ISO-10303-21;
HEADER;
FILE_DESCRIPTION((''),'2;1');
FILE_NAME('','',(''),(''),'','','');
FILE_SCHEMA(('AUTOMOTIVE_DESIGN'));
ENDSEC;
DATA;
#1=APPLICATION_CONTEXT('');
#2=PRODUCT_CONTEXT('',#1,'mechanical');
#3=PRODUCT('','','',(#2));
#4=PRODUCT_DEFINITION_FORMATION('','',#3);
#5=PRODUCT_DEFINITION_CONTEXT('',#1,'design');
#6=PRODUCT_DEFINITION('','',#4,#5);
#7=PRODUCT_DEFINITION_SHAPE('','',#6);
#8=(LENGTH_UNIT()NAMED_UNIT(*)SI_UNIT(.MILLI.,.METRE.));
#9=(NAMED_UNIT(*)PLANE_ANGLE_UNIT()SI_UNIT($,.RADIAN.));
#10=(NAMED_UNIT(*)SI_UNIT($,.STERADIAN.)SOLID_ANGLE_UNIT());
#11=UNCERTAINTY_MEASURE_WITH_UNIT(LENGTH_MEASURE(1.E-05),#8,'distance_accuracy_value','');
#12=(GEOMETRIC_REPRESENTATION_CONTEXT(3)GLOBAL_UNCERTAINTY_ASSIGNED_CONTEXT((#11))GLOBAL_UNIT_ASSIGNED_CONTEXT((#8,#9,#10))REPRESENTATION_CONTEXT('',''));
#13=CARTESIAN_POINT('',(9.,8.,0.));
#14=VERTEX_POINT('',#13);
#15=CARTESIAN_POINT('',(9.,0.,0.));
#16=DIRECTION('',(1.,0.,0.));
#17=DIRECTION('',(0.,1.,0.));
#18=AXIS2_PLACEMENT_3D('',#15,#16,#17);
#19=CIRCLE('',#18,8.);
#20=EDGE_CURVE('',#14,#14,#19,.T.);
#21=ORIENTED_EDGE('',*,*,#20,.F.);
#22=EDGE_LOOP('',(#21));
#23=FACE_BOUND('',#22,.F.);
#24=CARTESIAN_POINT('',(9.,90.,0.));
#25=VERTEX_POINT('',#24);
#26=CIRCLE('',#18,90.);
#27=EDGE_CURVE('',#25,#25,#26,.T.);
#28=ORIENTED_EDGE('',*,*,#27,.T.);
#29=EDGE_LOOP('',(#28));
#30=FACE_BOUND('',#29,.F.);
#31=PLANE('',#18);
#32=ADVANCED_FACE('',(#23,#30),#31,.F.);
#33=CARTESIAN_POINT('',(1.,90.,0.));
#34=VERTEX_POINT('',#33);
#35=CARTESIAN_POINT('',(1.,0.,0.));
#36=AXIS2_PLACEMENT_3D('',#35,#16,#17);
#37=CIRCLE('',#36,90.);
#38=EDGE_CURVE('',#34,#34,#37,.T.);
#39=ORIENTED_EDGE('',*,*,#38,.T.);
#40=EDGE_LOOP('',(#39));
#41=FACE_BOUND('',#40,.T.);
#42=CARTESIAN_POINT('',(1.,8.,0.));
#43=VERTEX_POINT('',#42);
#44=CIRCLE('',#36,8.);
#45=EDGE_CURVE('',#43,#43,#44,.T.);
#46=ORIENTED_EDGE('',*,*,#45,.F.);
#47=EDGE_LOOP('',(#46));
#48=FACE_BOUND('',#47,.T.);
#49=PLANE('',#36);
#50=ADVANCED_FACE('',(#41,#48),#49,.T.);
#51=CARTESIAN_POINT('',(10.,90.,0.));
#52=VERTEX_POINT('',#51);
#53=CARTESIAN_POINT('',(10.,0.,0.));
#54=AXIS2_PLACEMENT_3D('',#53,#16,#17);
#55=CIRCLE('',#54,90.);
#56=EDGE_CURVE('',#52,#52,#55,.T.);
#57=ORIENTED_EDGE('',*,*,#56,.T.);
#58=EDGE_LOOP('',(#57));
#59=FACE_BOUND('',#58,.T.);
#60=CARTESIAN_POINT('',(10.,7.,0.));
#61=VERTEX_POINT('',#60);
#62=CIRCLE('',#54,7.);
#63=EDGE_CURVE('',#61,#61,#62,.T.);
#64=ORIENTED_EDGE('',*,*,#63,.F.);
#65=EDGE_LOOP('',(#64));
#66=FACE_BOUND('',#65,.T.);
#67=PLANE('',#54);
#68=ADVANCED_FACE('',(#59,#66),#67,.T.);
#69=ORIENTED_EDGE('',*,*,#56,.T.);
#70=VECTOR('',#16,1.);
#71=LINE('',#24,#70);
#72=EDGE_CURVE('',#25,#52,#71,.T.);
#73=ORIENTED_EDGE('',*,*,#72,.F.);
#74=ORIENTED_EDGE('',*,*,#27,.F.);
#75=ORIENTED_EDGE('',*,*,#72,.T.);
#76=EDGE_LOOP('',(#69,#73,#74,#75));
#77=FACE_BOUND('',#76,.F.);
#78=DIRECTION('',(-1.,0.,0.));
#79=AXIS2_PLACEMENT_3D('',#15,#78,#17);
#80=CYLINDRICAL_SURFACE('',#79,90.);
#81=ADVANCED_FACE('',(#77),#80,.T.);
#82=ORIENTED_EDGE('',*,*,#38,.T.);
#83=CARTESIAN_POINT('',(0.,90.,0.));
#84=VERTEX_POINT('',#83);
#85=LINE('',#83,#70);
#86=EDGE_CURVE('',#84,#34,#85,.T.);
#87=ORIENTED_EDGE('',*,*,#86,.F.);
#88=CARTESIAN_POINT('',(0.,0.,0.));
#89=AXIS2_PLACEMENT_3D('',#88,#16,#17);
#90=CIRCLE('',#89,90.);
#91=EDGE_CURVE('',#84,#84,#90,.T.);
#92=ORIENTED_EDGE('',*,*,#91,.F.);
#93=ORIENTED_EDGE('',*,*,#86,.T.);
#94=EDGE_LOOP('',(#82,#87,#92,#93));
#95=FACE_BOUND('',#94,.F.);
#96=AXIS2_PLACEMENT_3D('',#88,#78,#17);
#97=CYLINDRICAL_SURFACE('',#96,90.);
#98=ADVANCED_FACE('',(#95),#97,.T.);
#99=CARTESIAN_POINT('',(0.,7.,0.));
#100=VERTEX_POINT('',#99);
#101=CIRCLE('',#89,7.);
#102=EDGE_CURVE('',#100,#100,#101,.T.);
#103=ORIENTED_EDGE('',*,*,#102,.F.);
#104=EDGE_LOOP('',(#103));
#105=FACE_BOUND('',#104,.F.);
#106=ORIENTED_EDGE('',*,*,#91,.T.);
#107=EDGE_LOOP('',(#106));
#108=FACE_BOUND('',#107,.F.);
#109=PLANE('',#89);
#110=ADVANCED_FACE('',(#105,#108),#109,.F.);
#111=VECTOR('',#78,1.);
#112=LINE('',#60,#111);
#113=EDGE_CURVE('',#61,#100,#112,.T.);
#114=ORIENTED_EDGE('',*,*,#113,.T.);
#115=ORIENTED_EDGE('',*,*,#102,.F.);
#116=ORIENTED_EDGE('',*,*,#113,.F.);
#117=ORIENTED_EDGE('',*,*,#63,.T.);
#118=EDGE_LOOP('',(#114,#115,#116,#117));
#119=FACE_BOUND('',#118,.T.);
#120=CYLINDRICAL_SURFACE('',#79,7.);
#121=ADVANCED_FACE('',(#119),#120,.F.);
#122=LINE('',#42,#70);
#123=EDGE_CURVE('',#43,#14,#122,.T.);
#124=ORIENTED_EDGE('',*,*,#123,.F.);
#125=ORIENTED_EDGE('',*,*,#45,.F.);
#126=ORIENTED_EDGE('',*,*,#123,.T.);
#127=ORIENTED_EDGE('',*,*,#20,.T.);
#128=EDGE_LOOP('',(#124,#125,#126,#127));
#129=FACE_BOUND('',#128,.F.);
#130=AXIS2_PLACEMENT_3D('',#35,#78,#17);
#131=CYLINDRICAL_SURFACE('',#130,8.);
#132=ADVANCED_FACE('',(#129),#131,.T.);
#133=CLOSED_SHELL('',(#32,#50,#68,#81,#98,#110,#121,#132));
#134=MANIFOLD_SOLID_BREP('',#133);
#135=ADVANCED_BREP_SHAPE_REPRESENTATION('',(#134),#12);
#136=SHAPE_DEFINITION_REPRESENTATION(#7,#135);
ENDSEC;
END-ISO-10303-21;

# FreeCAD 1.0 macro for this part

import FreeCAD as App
import Part
import Sketcher

doc = App.newDocument("Part")
body = doc.addObject("PartDesign::Body", "Body")

# Sketch on YZ plane
sketch1 = body.newObject("Sketcher::SketchObject", "Sketch")
sketch1.AttachmentSupport = (doc.getObject("YZ_Plane"), [""])
sketch1.MapMode = "FlatFace"
sketch1.addGeometry([
    Part.Circle(App.Vector(0, 0, 0), App.Vector(0, 0, 1), 90),
    Part.Circle(App.Vector(0, 0, 0), App.Vector(0, 0, 1), 7),
], False)
sketch1.addConstraint([
    Sketcher.Constraint("Coincident", 0, 3, -1, 1),
    Sketcher.Constraint("Coincident", 1, 3, -1, 1),
    Sketcher.Constraint("Diameter", 0, 180.0),
    Sketcher.Constraint("Diameter", 1, 14.0),
])
pad1 = body.newObject("PartDesign::Pad", "Pad")
pad1.Profile = sketch1
pad1.Length = 1

# Sketch on YZ plane
sketch2 = body.newObject("Sketcher::SketchObject", "Sketch001")
sketch2.AttachmentSupport = (doc.getObject("YZ_Plane"), [""])
sketch2.MapMode = "FlatFace"
sketch2.AttachmentOffset = App.Placement(App.Vector(0, 0, 1), App.Rotation())
sketch2.addGeometry([
    Part.Circle(App.Vector(0, 0, 0), App.Vector(0, 0, 1), 8),
    Part.Circle(App.Vector(0, 0, 0), App.Vector(0, 0, 1), 7),
], False)
sketch2.addConstraint([
    Sketcher.Constraint("Coincident", 0, 3, -1, 1),
    Sketcher.Constraint("Coincident", 1, 3, -1, 1),
    Sketcher.Constraint("Diameter", 0, 16.0),
    Sketcher.Constraint("Diameter", 1, 14.0),
])
pad2 = body.newObject("PartDesign::Pad", "Pad001")
pad2.Profile = sketch2
pad2.Length = 8

# Sketch on YZ plane
sketch3 = body.newObject("Sketcher::SketchObject", "Sketch002")
sketch3.AttachmentSupport = (doc.getObject("YZ_Plane"), [""])
sketch3.MapMode = "FlatFace"
sketch3.AttachmentOffset = App.Placement(App.Vector(0, 0, 9), App.Rotation())
sketch3.addGeometry([
    Part.Circle(App.Vector(0, 0, 0), App.Vector(0, 0, 1), 90),
    Part.Circle(App.Vector(0, 0, 0), App.Vector(0, 0, 1), 7),
], False)
sketch3.addConstraint([
    Sketcher.Constraint("Coincident", 0, 3, -1, 1),
    Sketcher.Constraint("Coincident", 1, 3, -1, 1),
    Sketcher.Constraint("Diameter", 0, 180.0),
    Sketcher.Constraint("Diameter", 1, 14.0),
])
pad3 = body.newObject("PartDesign::Pad", "Pad002")
pad3.Profile = sketch3
pad3.Length = 1

doc.recompute()
